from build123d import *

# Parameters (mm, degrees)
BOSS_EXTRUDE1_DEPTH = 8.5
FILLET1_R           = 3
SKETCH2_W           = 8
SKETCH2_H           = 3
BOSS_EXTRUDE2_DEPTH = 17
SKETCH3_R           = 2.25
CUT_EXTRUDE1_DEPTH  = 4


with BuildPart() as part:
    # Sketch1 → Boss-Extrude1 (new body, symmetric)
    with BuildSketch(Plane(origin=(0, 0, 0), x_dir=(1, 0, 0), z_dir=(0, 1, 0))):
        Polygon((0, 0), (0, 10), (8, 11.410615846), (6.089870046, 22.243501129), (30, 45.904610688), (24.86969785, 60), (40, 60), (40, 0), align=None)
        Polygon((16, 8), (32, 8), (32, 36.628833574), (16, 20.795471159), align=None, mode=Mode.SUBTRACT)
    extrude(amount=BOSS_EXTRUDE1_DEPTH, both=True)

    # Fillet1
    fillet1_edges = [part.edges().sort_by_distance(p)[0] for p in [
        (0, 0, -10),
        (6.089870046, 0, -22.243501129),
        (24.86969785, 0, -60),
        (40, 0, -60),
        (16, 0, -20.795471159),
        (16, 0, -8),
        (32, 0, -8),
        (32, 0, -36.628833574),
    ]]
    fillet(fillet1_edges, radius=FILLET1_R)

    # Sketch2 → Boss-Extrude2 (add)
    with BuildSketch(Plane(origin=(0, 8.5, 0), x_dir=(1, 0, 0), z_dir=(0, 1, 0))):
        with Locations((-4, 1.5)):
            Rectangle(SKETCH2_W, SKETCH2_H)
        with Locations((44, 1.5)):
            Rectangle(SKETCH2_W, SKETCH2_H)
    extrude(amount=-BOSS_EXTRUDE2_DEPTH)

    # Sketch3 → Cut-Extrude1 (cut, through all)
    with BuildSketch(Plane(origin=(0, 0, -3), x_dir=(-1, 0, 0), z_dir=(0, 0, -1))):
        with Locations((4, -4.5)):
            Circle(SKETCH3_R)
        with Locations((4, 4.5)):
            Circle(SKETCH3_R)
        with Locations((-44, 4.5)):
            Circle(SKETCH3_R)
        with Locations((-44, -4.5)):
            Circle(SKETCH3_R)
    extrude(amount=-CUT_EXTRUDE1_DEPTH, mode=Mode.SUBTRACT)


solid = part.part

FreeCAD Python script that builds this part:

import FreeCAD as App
import Part
import Sketcher
Q = App.Units.Quantity


def edges_at(feature, points):
    """Names of the edges that pass closest to the given points."""
    edges = feature.Shape.Edges
    near = lambda p: min(range(len(edges)), key=lambda i: edges[i].distToShape(Part.Vertex(*p))[0])
    return sorted({f"Edge{near(p) + 1}" for p in points})


def add_polygon(sketch, points):
    """Adds a closed chain of lines whose ends are joined by coincident constraints."""
    first, n = sketch.GeometryCount, len(points)
    for a, b in zip(points, points[1:] + points[:1]):
        sketch.addGeometry(Part.LineSegment(App.Vector(*a, 0), App.Vector(*b, 0)), False)
    for i in range(n):
        sketch.addConstraint(Sketcher.Constraint("Coincident", first + i, 2, first + (i + 1) % n, 1))

doc = App.newDocument("Part")
body = doc.addObject("PartDesign::Body", "Body")

# Sketch on XZ plane
sketch1 = body.newObject("Sketcher::SketchObject", "Sketch")
sketch1.AttachmentSupport = (doc.getObject("XZ_Plane"), [""])
sketch1.MapMode = "FlatFace"
add_polygon(sketch1, [(0, -10), (0, 0), (40, 0), (40, -60), (25, -60), (30, -46), (6, -22), (8, -11)])  # lines 0-7
add_polygon(sketch1, [(16, -8), (16, -21), (32, -37), (32, -8)])  # lines 8-11
sketch1.addConstraint(Sketcher.Constraint("Vertical", 0))
sketch1.addConstraint(Sketcher.Constraint("Horizontal", 1))
sketch1.addConstraint(Sketcher.Constraint("Vertical", 2))
sketch1.addConstraint(Sketcher.Constraint("Horizontal", 3))
sketch1.addConstraint(Sketcher.Constraint("Vertical", 8))
sketch1.addConstraint(Sketcher.Constraint("Vertical", 10))
sketch1.addConstraint(Sketcher.Constraint("Horizontal", 11))
sketch1.addConstraint(Sketcher.Constraint("Coincident", 0, 2, -1, 1))
sketch1.addConstraint(Sketcher.Constraint("Perpendicular", 6, 7))
sketch1.addConstraint(Sketcher.Constraint("Parallel", 5, 9))
sketch1.addConstraint(Sketcher.Constraint("DistanceX", 1, 1, 1, 2, 40.0))
sketch1.addConstraint(Sketcher.Constraint("DistanceX", 11, 2, 11, 1, 16.0))
sketch1.addConstraint(Sketcher.Constraint("DistanceY", 0, 1, 0, 2, 10.0))
sketch1.addConstraint(Sketcher.Constraint("DistanceY", 2, 2, 2, 1, 60.0))
sketch1.addConstraint(Sketcher.Constraint("Angle", 4, Q("70 deg")))
sketch1.addConstraint(Sketcher.Constraint("Angle", 6, Q("80 deg")))
sketch1.addConstraint(Sketcher.Constraint("Distance", 4, 15.0))
sketch1.addConstraint(Sketcher.Constraint("Distance", 6, 11.0))
sketch1.addConstraint(Sketcher.Constraint("DistanceX", -1, 1, 4, 2, 30.0))
sketch1.addConstraint(Sketcher.Constraint("DistanceX", -1, 1, 6, 2, 8.0))
sketch1.addConstraint(Sketcher.Constraint("DistanceX", -1, 1, 8, 2, 16.0))
sketch1.addConstraint(Sketcher.Constraint("DistanceY", 10, 2, -1, 1, 8.0))
sketch1.addConstraint(Sketcher.Constraint("DistanceY", 8, 2, 8, 1, 12.795471))
pad1 = body.newObject("PartDesign::Pad", "Pad")
pad1.Profile = sketch1
pad1.Length = 17
pad1.Midplane = True
doc.recompute()

fillet = body.newObject("PartDesign::Fillet", "Fillet")
fillet.Base = (pad1, edges_at(pad1, [
    (0, 0, -10),
    (6.09, 0, -22.244),
    (24.87, 0, -60),
    (40, 0, -60),
    (16, 0, -20.795),
    (16, 0, -8),
    (32, 0, -8),
    (32, 0, -36.629),
]))
fillet.Radius = 3

# Sketch on XZ plane
sketch2 = body.newObject("Sketcher::SketchObject", "Sketch001")
sketch2.AttachmentSupport = (doc.getObject("XZ_Plane"), [""])
sketch2.MapMode = "FlatFace"
sketch2.AttachmentOffset = App.Placement(App.Vector(0, 0, -8.5), App.Rotation())
add_polygon(sketch2, [(-8, -3), (-8, 0), (0, 0), (0, -3)])  # lines 0-3
add_polygon(sketch2, [(40, -3), (40, 0), (48, 0), (48, -3)])  # lines 4-7
sketch2.addConstraint(Sketcher.Constraint("Vertical", 0))
sketch2.addConstraint(Sketcher.Constraint("Horizontal", 1))
sketch2.addConstraint(Sketcher.Constraint("Vertical", 2))
sketch2.addConstraint(Sketcher.Constraint("Horizontal", 3))
sketch2.addConstraint(Sketcher.Constraint("Vertical", 4))
sketch2.addConstraint(Sketcher.Constraint("Horizontal", 5))
sketch2.addConstraint(Sketcher.Constraint("Vertical", 6))
sketch2.addConstraint(Sketcher.Constraint("Horizontal", 7))
sketch2.addConstraint(Sketcher.Constraint("Coincident", 1, 2, -1, 1))
sketch2.addConstraint(Sketcher.Constraint("PointOnObject", 4, 2, -1))
sketch2.addConstraint(Sketcher.Constraint("Horizontal", 3, 2, 6, 2))
sketch2.addConstraint(Sketcher.Constraint("Equal", 3, 5))
sketch2.addConstraint(Sketcher.Constraint("DistanceX", 1, 1, 1, 2, 8.0))
sketch2.addConstraint(Sketcher.Constraint("DistanceY", 0, 1, 0, 2, 3.0))
sketch2.addConstraint(Sketcher.Constraint("DistanceX", -1, 1, 4, 2, 40.0))
pad2 = body.newObject("PartDesign::Pad", "Pad001")
pad2.Profile = sketch2
pad2.Length = 17

# Sketch on XY plane
sketch3 = body.newObject("Sketcher::SketchObject", "Sketch002")
sketch3.AttachmentSupport = (doc.getObject("XY_Plane"), [""])
sketch3.MapMode = "FlatFace"
sketch3.AttachmentOffset = App.Placement(App.Vector(0, 0, -3), App.Rotation())
sketch3.addGeometry(Part.Circle(App.Vector(-4, -4.5, 0), App.Vector(0, 0, 1), 2.2), False)
sketch3.addGeometry(Part.Circle(App.Vector(-4, 4.5, 0), App.Vector(0, 0, 1), 2.2), False)
sketch3.addGeometry(Part.Circle(App.Vector(44, 4.5, 0), App.Vector(0, 0, 1), 2.2), False)
sketch3.addGeometry(Part.Circle(App.Vector(44, -4.5, 0), App.Vector(0, 0, 1), 2.2), False)
sketch3.addConstraint(Sketcher.Constraint("Equal", 0, 1))
sketch3.addConstraint(Sketcher.Constraint("Equal", 1, 2))
sketch3.addConstraint(Sketcher.Constraint("Equal", 2, 3))
sketch3.addConstraint(Sketcher.Constraint("Symmetric", 0, 3, 1, 3, -1))
sketch3.addConstraint(Sketcher.Constraint("Symmetric", 2, 3, 3, 3, -1))
sketch3.addConstraint(Sketcher.Constraint("Horizontal", 1, 3, 2, 3))
sketch3.addConstraint(Sketcher.Constraint("Diameter", 0, 4.5))
sketch3.addConstraint(Sketcher.Constraint("DistanceX", 0, 3, -1, 1, 4.0))
sketch3.addConstraint(Sketcher.Constraint("DistanceX", -1, 1, 2, 3, 44.0))
sketch3.addConstraint(Sketcher.Constraint("DistanceY", 0, 3, 1, 3, 9.0))
pocket1 = body.newObject("PartDesign::Pocket", "Pocket")
pocket1.Profile = sketch3
pocket1.Type = "ThroughAll"
pocket1.Reversed = True

doc.recompute()
